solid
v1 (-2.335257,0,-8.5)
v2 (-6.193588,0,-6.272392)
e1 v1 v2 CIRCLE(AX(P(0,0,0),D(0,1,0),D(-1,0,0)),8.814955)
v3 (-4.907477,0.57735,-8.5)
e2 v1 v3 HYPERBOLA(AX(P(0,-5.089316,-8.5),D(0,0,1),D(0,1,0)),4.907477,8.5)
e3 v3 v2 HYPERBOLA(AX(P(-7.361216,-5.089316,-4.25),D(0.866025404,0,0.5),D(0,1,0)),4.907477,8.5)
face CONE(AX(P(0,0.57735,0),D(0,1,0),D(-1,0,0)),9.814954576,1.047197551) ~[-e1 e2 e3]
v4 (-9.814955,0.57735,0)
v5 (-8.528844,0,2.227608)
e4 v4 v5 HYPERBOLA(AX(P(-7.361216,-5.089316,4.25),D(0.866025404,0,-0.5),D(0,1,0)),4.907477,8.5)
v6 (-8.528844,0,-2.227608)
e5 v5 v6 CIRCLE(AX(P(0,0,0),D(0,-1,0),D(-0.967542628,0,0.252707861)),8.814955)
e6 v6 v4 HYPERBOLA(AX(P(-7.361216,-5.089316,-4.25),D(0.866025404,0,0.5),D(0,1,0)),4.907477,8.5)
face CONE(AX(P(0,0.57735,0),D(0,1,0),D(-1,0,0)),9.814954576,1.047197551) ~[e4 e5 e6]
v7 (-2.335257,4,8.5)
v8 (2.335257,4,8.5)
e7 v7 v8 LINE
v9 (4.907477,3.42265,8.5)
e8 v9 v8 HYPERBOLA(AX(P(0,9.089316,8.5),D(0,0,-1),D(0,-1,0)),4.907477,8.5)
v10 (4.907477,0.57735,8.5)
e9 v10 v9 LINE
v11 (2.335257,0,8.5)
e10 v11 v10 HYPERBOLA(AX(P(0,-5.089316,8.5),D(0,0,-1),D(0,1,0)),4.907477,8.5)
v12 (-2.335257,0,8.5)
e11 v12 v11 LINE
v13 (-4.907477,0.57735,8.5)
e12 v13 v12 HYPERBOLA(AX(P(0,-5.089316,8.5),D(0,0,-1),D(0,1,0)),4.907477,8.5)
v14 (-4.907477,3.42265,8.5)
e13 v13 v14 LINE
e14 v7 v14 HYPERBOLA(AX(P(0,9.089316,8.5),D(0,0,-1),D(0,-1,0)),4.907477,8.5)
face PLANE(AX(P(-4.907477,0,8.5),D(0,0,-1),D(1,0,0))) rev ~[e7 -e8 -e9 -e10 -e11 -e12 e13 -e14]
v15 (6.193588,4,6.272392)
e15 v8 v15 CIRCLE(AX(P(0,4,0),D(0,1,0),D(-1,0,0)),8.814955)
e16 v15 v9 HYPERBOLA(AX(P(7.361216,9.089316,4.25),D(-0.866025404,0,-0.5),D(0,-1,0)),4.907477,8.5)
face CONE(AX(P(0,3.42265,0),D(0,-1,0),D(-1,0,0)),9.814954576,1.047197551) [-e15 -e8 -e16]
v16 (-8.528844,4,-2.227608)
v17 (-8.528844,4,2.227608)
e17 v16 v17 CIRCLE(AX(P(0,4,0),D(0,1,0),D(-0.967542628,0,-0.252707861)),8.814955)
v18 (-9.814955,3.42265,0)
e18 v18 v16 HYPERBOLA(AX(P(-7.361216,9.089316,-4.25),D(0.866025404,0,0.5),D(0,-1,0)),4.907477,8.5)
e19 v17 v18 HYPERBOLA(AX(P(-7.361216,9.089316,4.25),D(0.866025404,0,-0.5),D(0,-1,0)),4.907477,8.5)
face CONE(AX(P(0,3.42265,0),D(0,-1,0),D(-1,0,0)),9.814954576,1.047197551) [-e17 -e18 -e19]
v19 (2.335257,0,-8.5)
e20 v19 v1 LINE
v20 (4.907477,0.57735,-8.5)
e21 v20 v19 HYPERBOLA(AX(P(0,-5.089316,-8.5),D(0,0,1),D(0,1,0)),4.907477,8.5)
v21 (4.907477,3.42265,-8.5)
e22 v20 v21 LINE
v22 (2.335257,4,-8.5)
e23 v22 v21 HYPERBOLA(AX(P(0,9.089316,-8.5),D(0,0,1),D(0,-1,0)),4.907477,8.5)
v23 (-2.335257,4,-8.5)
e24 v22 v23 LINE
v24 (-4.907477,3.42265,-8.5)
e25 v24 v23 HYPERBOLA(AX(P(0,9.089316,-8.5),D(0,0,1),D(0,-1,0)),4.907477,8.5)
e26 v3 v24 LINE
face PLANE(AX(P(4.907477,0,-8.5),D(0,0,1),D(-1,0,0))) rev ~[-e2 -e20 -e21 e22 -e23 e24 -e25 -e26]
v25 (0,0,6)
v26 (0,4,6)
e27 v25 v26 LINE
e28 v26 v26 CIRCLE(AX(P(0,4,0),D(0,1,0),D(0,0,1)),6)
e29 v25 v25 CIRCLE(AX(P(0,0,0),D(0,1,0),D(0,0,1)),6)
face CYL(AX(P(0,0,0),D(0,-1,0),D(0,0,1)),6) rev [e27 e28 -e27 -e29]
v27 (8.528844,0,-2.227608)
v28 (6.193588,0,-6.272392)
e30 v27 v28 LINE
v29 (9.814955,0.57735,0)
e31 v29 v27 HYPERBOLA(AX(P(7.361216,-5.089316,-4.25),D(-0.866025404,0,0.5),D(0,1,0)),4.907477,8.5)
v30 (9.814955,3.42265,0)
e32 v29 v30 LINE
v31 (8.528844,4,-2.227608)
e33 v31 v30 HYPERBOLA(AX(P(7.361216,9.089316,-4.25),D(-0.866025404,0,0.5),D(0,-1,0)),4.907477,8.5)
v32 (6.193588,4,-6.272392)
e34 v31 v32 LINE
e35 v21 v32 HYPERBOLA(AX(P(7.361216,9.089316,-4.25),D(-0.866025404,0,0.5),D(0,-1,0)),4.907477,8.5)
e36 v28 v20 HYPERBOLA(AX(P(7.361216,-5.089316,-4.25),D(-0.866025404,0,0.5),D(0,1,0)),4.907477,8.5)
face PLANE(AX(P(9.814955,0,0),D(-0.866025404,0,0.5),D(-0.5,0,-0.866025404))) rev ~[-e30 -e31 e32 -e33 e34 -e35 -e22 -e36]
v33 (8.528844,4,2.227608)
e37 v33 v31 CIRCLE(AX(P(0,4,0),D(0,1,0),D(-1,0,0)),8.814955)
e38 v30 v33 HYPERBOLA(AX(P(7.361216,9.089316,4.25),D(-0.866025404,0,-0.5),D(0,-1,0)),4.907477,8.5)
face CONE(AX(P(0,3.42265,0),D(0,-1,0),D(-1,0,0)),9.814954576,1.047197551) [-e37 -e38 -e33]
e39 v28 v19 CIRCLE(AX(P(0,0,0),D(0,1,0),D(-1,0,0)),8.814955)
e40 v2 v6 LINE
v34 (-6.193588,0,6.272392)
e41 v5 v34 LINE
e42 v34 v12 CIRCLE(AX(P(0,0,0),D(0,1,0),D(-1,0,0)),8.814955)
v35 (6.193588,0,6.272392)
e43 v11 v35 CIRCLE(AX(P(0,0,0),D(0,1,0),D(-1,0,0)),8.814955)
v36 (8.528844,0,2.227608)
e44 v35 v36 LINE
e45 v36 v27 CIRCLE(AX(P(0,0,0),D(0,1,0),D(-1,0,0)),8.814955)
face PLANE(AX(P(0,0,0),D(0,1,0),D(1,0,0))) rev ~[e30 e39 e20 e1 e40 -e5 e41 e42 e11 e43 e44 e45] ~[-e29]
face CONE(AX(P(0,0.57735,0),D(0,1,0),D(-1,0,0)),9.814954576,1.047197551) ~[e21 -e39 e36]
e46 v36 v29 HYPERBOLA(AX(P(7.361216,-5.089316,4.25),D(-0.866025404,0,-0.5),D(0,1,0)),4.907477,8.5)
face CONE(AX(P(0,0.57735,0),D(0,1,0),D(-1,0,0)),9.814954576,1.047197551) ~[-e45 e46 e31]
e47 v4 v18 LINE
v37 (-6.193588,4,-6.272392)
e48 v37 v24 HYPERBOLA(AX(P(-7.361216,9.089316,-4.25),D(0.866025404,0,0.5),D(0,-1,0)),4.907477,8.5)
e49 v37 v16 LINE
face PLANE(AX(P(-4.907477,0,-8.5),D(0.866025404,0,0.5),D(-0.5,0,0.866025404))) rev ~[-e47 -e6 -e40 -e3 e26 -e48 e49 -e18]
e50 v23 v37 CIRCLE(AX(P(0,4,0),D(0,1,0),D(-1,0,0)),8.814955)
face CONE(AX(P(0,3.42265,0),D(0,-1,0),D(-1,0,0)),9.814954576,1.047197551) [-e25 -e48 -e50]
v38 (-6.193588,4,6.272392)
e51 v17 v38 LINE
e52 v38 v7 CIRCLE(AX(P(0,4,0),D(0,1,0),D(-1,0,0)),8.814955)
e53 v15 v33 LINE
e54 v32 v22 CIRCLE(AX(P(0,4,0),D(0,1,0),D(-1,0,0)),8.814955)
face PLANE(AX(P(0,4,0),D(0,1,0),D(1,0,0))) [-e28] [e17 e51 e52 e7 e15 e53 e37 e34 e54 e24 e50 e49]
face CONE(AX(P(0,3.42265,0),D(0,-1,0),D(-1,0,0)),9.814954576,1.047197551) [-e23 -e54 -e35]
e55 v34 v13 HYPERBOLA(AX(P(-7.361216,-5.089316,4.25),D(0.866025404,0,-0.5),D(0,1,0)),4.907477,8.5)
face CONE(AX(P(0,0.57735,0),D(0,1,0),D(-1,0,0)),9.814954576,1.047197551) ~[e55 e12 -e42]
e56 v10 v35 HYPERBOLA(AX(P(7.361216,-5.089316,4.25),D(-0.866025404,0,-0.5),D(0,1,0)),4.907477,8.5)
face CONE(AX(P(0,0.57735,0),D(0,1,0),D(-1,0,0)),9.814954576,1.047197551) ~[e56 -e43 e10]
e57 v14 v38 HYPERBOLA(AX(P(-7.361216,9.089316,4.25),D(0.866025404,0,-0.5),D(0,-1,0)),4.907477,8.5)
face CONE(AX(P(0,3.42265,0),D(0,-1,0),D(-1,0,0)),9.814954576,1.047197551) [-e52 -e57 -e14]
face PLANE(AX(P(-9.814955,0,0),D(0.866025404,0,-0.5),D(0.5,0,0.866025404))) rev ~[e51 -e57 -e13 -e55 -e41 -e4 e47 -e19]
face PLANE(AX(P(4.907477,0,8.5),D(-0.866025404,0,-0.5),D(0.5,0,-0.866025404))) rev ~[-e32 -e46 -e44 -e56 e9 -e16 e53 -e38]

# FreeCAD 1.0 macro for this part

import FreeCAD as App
import Part
import Sketcher
Q = App.Units.Quantity

doc = App.newDocument("Part")
params = doc.addObject("Spreadsheet::Sheet", "Params")
for row, (alias, value) in enumerate([
    ("sketch1_diameter", "12 mm"),
    ("pad1_length", "4 mm"),
    ("sketch2_width", "1 mm"),
    ("groove_angle", "360 deg"),
], start=1):
    params.set(f"A{row}", alias)
    params.set(f"B{row}", "=" + value)
    params.setAlias(f"B{row}", alias)

body = doc.addObject("PartDesign::Body", "Body")

# Sketch on XZ plane
sketch1 = body.newObject("Sketcher::SketchObject", "Sketch")
sketch1.AttachmentSupport = (doc.getObject("XZ_Plane"), [""])
sketch1.MapMode = "FlatFace"
sketch1.addGeometry([
    Part.LineSegment(App.Vector(9.814955, 0, 0), App.Vector(4.907477, -8.5, 0)),  # 0
    Part.LineSegment(App.Vector(4.907477, -8.5, 0), App.Vector(-4.907477, -8.5, 0)),  # 1
    Part.LineSegment(App.Vector(-4.907477, -8.5, 0), App.Vector(-9.814955, 0, 0)),  # 2
    Part.LineSegment(App.Vector(-9.814955, 0, 0), App.Vector(-4.907477, 8.5, 0)),  # 3
    Part.LineSegment(App.Vector(-4.907477, 8.5, 0), App.Vector(4.907477, 8.5, 0)),  # 4
    Part.LineSegment(App.Vector(4.907477, 8.5, 0), App.Vector(9.814955, 0, 0)),  # 5
    Part.Circle(App.Vector(0, 0, 0), App.Vector(0, 0, 1), 6),  # 6
], False)
sketch1.addConstraint([
    Sketcher.Constraint("Coincident", 0, 2, 1, 1),
    Sketcher.Constraint("Coincident", 1, 2, 2, 1),
    Sketcher.Constraint("Coincident", 2, 2, 3, 1),
    Sketcher.Constraint("Coincident", 3, 2, 4, 1),
    Sketcher.Constraint("Coincident", 4, 2, 5, 1),
    Sketcher.Constraint("Coincident", 5, 2, 0, 1),
    Sketcher.Constraint("Horizontal", 1),
    Sketcher.Constraint("Horizontal", 4),
    Sketcher.Constraint("Coincident", 6, 3, -1, 1),
    Sketcher.Constraint("Symmetric", 0, 2, 3, 2, -1, 1),
    Sketcher.Constraint("Symmetric", 2, 2, 5, 2, -1, 1),
    Sketcher.Constraint("PointOnObject", 2, 2, -1),
    Sketcher.Constraint("Parallel", 2, 5),
    Sketcher.Constraint("Vertical", 1, 2, 3, 2),
    Sketcher.Constraint("Diameter", 6, 12.0),
    Sketcher.Constraint("Angle", 0, Q("-120 deg")),
    Sketcher.Constraint("DistanceY", 1, 2, 3, 2, 17.0),
    Sketcher.Constraint("DistanceX", 1, 2, 1, 1, 9.814955),
])
sketch1.setExpression("Constraints[14]", "Params.sketch1_diameter")
pad1 = body.newObject("PartDesign::Pad", "Pad")
pad1.Profile = sketch1
pad1.setExpression("Length", "Params.pad1_length")
pad1.Reversed = True

# Sketch on XY plane
sketch2 = body.newObject("Sketcher::SketchObject", "Sketch001")
sketch2.AttachmentSupport = (doc.getObject("XY_Plane"), [""])
sketch2.MapMode = "FlatFace"
sketch2.addGeometry([
    Part.LineSegment(App.Vector(-9.814955, 3.42265, 0), App.Vector(-8.814955, 4, 0)),  # 0
    Part.LineSegment(App.Vector(-8.814955, 4, 0), App.Vector(-9.814955, 4, 0)),  # 1
    Part.LineSegment(App.Vector(-9.814955, 4, 0), App.Vector(-9.814955, 3.42265, 0)),  # 2
    Part.LineSegment(App.Vector(-9.814955, 0.57735, 0), App.Vector(-9.814955, 0, 0)),  # 3
    Part.LineSegment(App.Vector(-9.814955, 0, 0), App.Vector(-8.814955, 0, 0)),  # 4
    Part.LineSegment(App.Vector(-8.814955, 0, 0), App.Vector(-9.814955, 0.57735, 0)),  # 5
], False)
sketch2.addConstraint([
    Sketcher.Constraint("Coincident", 0, 2, 1, 1),
    Sketcher.Constraint("Coincident", 1, 2, 2, 1),
    Sketcher.Constraint("Coincident", 2, 2, 0, 1),
    Sketcher.Constraint("Coincident", 3, 2, 4, 1),
    Sketcher.Constraint("Coincident", 4, 2, 5, 1),
    Sketcher.Constraint("Coincident", 5, 2, 3, 1),
    Sketcher.Constraint("Horizontal", 1),
    Sketcher.Constraint("Vertical", 2),
    Sketcher.Constraint("Vertical", 3),
    Sketcher.Constraint("Horizontal", 4),
    Sketcher.Constraint("PointOnObject", 3, 2, -1),
    Sketcher.Constraint("Vertical", 2, 2, 3, 2),
    Sketcher.Constraint("Vertical", 0, 2, 4, 2),
    Sketcher.Constraint("Equal", 2, 3),
    Sketcher.Constraint("DistanceX", 1, 2, 1, 1, 1.0),
    Sketcher.Constraint("Angle", 0, Q("30 deg")),
    Sketcher.Constraint("DistanceY", -1, 1, 0, 2, 4.0),
    Sketcher.Constraint("DistanceX", 0, 2, -1, 1, 8.814955),
])
sketch2.setExpression("Constraints[14]", "Params.sketch2_width")
groove = body.newObject("PartDesign::Groove", "Groove")
groove.Profile = sketch2
groove.ReferenceAxis = (sketch2, ["V_Axis"])
groove.setExpression("Angle", "Params.groove_angle")

doc.recompute()
